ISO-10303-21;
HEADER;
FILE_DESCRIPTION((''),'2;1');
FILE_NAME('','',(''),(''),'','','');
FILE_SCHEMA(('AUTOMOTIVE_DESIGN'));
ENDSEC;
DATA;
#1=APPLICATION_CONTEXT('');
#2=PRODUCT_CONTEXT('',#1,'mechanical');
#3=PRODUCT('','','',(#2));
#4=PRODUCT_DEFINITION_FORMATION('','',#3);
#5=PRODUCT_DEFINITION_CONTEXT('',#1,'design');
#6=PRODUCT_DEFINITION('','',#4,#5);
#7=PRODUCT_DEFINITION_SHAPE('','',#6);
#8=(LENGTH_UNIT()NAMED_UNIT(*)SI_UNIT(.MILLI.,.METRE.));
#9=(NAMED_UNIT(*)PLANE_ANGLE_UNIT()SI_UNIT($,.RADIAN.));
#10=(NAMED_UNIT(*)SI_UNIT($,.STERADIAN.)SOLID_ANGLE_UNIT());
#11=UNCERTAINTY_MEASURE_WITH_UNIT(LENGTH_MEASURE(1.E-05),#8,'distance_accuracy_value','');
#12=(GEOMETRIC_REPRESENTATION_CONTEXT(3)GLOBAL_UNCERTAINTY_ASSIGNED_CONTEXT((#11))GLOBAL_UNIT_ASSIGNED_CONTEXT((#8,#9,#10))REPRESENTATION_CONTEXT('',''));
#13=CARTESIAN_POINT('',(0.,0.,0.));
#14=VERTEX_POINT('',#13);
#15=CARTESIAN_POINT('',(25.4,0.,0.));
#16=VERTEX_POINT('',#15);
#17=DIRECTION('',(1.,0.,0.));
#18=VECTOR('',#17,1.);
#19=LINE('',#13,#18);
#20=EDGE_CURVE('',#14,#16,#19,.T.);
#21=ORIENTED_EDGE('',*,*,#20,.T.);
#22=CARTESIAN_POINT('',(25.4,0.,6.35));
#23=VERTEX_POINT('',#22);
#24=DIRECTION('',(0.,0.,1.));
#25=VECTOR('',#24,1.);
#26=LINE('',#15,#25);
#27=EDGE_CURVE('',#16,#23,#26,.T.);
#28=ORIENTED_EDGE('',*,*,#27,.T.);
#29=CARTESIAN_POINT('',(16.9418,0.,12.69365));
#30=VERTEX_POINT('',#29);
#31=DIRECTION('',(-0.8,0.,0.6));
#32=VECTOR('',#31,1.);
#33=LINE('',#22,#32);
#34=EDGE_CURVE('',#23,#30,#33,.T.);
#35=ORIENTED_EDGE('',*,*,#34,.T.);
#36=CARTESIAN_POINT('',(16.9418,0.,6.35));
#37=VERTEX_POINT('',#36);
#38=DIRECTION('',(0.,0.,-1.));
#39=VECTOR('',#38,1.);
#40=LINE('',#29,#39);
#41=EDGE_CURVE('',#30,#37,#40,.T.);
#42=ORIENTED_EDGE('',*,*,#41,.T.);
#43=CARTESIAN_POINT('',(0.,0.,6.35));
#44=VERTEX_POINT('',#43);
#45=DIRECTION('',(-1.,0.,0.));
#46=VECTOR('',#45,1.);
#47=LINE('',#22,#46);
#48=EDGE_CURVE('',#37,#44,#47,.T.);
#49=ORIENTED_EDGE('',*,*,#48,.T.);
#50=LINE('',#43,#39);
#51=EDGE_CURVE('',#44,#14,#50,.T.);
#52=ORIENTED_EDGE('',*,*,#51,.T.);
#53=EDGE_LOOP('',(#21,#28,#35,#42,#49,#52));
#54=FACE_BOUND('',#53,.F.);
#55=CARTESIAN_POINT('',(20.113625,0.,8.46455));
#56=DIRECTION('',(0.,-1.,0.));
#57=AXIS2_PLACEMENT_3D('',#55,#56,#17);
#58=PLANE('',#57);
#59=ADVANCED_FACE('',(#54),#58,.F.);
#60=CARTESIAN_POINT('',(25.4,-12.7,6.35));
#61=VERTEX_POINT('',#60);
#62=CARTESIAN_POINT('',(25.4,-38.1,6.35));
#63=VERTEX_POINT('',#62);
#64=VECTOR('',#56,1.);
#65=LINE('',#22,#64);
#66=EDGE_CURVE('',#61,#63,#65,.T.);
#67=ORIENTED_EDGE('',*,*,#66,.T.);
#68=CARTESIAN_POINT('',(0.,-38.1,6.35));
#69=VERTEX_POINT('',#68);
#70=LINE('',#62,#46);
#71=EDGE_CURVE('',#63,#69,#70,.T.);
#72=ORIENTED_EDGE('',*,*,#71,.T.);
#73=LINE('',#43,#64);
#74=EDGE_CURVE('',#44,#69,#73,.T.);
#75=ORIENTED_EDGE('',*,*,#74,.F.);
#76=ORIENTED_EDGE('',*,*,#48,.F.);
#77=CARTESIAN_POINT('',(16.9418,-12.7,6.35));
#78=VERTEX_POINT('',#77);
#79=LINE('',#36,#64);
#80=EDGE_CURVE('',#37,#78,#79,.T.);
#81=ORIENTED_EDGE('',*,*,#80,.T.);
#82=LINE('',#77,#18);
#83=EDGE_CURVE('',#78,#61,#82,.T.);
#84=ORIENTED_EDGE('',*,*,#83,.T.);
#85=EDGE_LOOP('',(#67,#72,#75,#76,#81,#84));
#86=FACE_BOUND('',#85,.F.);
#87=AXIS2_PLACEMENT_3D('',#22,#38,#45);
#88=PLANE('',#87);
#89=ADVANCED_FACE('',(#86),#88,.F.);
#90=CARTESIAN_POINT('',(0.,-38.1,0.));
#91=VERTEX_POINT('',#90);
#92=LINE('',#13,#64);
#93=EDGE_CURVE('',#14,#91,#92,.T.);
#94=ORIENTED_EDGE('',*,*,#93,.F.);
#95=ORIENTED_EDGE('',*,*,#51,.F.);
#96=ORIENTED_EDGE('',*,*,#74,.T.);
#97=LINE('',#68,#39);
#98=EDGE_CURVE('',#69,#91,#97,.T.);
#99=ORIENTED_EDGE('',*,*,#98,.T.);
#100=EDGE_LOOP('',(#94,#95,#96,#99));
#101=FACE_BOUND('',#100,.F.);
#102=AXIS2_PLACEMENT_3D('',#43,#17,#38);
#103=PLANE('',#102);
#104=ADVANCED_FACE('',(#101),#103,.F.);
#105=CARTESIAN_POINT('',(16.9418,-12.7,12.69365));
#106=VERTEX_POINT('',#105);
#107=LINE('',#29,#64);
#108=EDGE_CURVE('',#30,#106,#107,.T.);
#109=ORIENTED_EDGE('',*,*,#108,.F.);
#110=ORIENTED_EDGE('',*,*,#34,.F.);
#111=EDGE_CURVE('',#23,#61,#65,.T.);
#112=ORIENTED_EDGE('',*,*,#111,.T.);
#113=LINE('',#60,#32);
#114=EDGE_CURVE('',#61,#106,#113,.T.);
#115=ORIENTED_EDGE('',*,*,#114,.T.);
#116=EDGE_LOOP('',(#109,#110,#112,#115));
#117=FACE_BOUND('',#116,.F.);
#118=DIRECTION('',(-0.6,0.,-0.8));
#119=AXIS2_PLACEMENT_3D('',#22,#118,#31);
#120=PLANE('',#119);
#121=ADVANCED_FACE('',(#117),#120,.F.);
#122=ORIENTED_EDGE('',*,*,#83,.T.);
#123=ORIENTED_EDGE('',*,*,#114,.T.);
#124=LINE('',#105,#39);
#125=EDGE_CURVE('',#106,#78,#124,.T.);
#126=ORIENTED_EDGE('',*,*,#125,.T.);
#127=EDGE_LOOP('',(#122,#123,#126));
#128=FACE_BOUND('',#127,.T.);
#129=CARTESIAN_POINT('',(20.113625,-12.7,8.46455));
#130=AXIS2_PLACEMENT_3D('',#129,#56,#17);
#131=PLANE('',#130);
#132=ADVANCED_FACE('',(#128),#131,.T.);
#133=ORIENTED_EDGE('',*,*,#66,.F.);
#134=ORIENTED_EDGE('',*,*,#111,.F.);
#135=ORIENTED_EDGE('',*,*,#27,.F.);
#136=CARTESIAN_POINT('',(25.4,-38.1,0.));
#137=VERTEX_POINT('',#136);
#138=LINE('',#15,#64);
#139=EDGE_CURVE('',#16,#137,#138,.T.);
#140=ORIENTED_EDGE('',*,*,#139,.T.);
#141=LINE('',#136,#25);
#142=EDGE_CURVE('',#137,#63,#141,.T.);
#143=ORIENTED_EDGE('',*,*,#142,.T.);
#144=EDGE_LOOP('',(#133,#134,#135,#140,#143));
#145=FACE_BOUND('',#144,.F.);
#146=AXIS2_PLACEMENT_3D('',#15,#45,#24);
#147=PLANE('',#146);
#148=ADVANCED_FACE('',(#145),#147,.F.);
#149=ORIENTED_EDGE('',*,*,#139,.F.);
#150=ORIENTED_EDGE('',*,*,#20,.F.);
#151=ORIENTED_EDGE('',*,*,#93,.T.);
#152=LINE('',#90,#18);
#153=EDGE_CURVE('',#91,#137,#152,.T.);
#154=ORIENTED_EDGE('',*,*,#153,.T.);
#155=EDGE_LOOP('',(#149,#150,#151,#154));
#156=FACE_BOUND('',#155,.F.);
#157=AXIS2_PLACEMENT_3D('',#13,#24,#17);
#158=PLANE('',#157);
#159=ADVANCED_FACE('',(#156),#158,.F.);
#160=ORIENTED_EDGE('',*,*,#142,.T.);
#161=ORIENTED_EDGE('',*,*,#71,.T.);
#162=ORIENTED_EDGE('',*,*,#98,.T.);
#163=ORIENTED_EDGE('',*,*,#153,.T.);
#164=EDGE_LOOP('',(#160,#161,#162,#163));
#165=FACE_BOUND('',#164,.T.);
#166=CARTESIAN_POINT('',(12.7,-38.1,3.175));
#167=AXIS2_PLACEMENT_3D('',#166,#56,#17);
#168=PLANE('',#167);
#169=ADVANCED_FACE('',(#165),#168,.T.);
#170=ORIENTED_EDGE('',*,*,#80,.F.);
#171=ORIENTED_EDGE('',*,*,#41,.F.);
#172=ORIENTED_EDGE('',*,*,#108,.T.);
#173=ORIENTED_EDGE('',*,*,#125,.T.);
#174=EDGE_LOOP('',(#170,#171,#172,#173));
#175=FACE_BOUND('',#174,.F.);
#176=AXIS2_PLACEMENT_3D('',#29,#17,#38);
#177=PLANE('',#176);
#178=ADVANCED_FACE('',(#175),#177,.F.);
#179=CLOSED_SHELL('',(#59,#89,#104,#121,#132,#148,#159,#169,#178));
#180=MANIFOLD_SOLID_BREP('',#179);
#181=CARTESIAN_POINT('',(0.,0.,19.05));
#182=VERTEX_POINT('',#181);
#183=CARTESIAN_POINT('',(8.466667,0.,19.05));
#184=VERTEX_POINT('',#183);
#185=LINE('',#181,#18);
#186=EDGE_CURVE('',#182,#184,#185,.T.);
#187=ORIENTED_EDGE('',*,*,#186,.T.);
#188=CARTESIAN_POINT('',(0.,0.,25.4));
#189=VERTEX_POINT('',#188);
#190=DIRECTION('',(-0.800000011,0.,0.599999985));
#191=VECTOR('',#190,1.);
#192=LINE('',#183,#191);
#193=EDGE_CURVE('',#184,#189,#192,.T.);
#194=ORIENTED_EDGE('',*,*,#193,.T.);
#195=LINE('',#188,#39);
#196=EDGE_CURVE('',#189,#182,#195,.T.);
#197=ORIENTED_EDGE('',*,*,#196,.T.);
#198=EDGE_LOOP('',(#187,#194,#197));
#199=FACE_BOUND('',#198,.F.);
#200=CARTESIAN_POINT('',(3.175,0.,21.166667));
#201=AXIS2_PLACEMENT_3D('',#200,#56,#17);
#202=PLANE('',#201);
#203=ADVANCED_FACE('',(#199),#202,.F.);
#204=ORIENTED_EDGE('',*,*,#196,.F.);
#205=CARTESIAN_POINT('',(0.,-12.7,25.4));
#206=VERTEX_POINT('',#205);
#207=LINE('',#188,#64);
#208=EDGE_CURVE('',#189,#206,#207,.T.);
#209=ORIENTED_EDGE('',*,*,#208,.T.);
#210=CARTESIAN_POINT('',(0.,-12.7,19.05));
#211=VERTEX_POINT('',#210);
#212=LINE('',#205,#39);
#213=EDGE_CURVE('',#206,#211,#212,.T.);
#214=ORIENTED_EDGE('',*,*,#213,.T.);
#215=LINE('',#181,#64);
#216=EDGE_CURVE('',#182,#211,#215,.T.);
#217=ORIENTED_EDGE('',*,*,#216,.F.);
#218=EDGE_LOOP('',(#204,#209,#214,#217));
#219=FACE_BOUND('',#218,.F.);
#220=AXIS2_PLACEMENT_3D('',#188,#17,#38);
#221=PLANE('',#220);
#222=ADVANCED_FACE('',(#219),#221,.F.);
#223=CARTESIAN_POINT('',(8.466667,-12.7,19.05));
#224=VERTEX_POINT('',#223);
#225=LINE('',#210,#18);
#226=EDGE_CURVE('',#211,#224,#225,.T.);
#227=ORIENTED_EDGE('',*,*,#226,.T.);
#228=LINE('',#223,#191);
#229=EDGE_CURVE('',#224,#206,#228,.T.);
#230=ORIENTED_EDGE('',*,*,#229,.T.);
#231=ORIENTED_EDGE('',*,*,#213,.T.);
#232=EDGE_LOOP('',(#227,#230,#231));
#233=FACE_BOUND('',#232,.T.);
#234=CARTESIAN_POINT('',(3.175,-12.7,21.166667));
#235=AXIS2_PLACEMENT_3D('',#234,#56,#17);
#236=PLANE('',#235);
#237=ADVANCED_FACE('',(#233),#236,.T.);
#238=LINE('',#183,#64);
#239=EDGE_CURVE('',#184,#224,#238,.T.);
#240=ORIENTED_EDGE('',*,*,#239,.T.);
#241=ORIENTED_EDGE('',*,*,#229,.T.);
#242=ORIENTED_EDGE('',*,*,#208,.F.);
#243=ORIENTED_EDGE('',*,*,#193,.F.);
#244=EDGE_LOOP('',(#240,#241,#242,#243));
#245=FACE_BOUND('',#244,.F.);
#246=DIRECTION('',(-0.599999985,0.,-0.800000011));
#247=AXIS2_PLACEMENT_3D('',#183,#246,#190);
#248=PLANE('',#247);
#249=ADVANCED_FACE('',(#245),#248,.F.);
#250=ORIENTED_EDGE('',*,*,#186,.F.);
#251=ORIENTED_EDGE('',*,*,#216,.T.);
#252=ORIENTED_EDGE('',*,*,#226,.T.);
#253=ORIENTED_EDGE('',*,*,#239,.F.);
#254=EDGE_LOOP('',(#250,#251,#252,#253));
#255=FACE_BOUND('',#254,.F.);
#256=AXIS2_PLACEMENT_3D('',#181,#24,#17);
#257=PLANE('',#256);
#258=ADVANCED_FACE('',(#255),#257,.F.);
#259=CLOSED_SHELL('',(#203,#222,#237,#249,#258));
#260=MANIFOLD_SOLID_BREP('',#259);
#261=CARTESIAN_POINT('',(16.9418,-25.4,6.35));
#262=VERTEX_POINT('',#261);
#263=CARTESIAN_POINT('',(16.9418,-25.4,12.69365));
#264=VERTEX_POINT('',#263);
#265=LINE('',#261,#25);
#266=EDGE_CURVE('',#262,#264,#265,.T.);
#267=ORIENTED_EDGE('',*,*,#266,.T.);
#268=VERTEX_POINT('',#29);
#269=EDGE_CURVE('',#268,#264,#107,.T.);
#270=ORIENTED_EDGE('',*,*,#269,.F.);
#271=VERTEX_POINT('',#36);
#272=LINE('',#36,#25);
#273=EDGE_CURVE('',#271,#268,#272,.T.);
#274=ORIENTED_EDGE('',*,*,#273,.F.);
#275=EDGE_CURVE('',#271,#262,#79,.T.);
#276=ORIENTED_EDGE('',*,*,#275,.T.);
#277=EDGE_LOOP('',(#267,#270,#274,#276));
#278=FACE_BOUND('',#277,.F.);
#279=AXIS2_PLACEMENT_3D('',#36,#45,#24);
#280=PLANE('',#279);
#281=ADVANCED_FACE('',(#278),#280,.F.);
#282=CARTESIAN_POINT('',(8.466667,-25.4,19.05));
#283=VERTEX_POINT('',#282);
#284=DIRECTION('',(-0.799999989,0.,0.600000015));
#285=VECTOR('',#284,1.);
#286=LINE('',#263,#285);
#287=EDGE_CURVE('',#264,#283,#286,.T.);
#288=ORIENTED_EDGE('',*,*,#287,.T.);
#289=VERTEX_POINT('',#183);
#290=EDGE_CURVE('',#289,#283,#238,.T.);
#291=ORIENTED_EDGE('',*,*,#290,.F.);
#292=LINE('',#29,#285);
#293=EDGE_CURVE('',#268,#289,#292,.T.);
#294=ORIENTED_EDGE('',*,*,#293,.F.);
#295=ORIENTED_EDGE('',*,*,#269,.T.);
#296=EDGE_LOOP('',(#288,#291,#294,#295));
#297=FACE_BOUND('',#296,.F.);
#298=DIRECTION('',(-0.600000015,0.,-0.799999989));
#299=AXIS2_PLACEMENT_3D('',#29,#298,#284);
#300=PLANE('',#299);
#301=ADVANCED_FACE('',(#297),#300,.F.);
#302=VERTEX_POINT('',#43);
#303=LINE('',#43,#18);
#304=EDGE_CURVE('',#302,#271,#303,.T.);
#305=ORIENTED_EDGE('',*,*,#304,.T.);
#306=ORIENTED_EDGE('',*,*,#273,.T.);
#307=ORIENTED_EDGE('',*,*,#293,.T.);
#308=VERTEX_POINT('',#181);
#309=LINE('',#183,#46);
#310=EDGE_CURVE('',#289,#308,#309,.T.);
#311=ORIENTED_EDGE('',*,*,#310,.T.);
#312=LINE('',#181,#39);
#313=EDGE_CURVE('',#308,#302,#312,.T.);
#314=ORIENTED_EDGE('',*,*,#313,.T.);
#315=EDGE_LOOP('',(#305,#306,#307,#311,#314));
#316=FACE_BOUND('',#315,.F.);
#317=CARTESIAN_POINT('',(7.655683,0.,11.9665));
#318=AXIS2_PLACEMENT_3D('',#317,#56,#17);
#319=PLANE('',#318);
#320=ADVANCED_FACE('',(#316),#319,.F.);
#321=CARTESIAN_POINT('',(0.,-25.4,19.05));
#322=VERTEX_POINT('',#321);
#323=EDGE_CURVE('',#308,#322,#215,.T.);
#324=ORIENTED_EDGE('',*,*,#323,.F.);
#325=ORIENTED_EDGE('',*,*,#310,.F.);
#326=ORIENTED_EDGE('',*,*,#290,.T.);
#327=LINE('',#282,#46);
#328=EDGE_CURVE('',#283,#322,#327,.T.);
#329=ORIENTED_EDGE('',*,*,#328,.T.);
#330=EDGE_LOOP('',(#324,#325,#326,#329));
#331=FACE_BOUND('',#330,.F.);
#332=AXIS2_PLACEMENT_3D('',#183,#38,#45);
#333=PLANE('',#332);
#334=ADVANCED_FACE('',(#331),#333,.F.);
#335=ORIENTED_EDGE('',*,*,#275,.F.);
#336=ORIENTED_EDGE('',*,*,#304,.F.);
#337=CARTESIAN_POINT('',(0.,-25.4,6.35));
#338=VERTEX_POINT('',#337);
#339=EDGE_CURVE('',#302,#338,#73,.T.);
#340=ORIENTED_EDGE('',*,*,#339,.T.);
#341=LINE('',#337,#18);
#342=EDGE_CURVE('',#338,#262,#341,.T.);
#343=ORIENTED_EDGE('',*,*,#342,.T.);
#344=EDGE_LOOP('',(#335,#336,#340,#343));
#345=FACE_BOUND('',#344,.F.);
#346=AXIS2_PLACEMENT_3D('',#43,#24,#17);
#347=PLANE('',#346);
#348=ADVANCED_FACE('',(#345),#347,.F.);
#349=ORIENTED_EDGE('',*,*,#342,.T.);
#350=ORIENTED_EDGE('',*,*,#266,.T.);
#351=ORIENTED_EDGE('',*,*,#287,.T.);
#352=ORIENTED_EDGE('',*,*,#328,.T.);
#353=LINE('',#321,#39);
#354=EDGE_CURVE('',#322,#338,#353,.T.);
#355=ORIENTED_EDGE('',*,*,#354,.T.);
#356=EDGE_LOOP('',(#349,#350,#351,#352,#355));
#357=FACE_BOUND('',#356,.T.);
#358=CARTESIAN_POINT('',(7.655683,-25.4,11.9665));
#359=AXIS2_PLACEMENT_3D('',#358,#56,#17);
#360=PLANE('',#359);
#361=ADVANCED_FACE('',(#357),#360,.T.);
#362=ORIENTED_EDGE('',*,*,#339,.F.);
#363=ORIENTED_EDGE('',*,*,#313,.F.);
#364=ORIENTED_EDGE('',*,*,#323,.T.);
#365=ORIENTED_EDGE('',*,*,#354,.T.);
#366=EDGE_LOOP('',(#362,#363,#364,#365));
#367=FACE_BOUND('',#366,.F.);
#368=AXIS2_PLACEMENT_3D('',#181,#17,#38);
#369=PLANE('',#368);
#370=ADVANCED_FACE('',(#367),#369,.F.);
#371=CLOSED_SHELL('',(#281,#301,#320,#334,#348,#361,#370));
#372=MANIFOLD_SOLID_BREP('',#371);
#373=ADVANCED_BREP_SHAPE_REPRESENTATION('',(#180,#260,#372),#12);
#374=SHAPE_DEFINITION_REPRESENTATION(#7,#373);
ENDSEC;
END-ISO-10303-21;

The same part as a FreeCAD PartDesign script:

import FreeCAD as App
import Part
import Sketcher

V = App.Vector
Q = App.Units.Quantity

doc = App.newDocument("Part")
body = doc.addObject("PartDesign::Body", "Body")
body.AllowCompound = True

# Sketch on XZ plane
sketch1 = body.newObject("Sketcher::SketchObject", "Sketch")
sketch1.AttachmentSupport = (doc.getObject("XZ_Plane"), [""])
sketch1.MapMode = "FlatFace"
sketch1.addGeometry([
    Part.LineSegment(V(0, 6, 0), V(0, 0, 0)),
    Part.LineSegment(V(0, 0, 0), V(25, 0, 0)),
    Part.LineSegment(V(25, 0, 0), V(25, 6, 0)),
    Part.LineSegment(V(25, 6, 0), V(0, 6, 0)),
], False)
sketch1.addConstraint([
    Sketcher.Constraint("Coincident", 0, 2, 1, 1),
    Sketcher.Constraint("Coincident", 1, 2, 2, 1),
    Sketcher.Constraint("Coincident", 2, 2, 3, 1),
    Sketcher.Constraint("Coincident", 3, 2, 0, 1),
    Sketcher.Constraint("Vertical", 0),
    Sketcher.Constraint("Horizontal", 1),
    Sketcher.Constraint("Vertical", 2),
    Sketcher.Constraint("Horizontal", 3),
    Sketcher.Constraint("Coincident", 0, 2, -1, 1),
    Sketcher.Constraint("DistanceX", 1, 1, 1, 2, Q("1 in")),
    Sketcher.Constraint("DistanceY", 0, 2, 0, 1, Q("0.25 in")),
])
pad1 = body.newObject("PartDesign::Pad", "Pad")
pad1.Profile = sketch1
pad1.Length = Q("1.5 in")

# Sketch on XZ plane
sketch2 = body.newObject("Sketcher::SketchObject", "Sketch001")
sketch2.AttachmentSupport = (doc.getObject("XZ_Plane"), [""])
sketch2.MapMode = "FlatFace"
sketch2.addGeometry([
    Part.LineSegment(V(0, 25, 0), V(0, 19, 0)),  # 0
    Part.LineSegment(V(0, 19, 0), V(8, 19, 0)),  # 1
    Part.LineSegment(V(8, 19, 0), V(0, 25, 0)),  # 2
    Part.LineSegment(V(17, 6, 0), V(25, 6, 0)),  # 3
    Part.LineSegment(V(25, 6, 0), V(17, 13, 0)),  # 4
    Part.LineSegment(V(17, 13, 0), V(17, 6, 0)),  # 5
], False)
sketch2.addConstraint([
    Sketcher.Constraint("Coincident", 0, 2, 1, 1),
    Sketcher.Constraint("Coincident", 1, 2, 2, 1),
    Sketcher.Constraint("Coincident", 2, 2, 0, 1),
    Sketcher.Constraint("Coincident", 3, 2, 4, 1),
    Sketcher.Constraint("Coincident", 4, 2, 5, 1),
    Sketcher.Constraint("Coincident", 5, 2, 3, 1),
    Sketcher.Constraint("Vertical", 0),
    Sketcher.Constraint("Horizontal", 1),
    Sketcher.Constraint("Horizontal", 3),
    Sketcher.Constraint("Vertical", 5),
    Sketcher.Constraint("PointOnObject", 0, 2, -2),
    Sketcher.Constraint("Parallel", 2, 4),
    Sketcher.Constraint("DistanceY", -1, 1, 2, 2, Q("1 in")),
    Sketcher.Constraint("DistanceX", -1, 1, 3, 2, Q("1 in")),
    Sketcher.Constraint("DistanceY", 0, 2, 0, 1, Q("0.25 in")),
    Sketcher.Constraint("DistanceY", 3, 2, 1, 2, Q("0.5 in")),
    Sketcher.Constraint("DistanceX", 3, 1, 3, 2, Q("0.333 in")),
    Sketcher.Constraint("DistanceY", 5, 2, 5, 1, 6.34365),
])
pad2 = body.newObject("PartDesign::Pad", "Pad001")
pad2.Profile = sketch2
pad2.Length = Q("0.5 in")
body2 = doc.addObject("PartDesign::Body", "Body001")

# Sketch on XZ plane
sketch3 = body2.newObject("Sketcher::SketchObject", "Sketch002")
sketch3.AttachmentSupport = (doc.getObject("XZ_Plane001"), [""])
sketch3.MapMode = "FlatFace"
sketch3.addGeometry([
    Part.LineSegment(V(0, 19, 0), V(0, 6, 0)),  # 0
    Part.LineSegment(V(0, 6, 0), V(17, 6, 0)),  # 1
    Part.LineSegment(V(17, 6, 0), V(17, 13, 0)),  # 2
    Part.LineSegment(V(17, 13, 0), V(8, 19, 0)),  # 3
    Part.LineSegment(V(8, 19, 0), V(0, 19, 0)),  # 4
], False)
sketch3.addConstraint([
    Sketcher.Constraint("Coincident", 0, 2, 1, 1),
    Sketcher.Constraint("Coincident", 1, 2, 2, 1),
    Sketcher.Constraint("Coincident", 2, 2, 3, 1),
    Sketcher.Constraint("Coincident", 3, 2, 4, 1),
    Sketcher.Constraint("Coincident", 4, 2, 0, 1),
    Sketcher.Constraint("Vertical", 0),
    Sketcher.Constraint("Horizontal", 1),
    Sketcher.Constraint("Vertical", 2),
    Sketcher.Constraint("Horizontal", 4),
    Sketcher.Constraint("PointOnObject", 0, 2, -2),
    Sketcher.Constraint("DistanceY", 0, 2, 0, 1, Q("0.5 in")),
    Sketcher.Constraint("DistanceX", 1, 1, 1, 2, Q("0.667 in")),
    Sketcher.Constraint("DistanceY", -1, 1, 0, 2, Q("0.25 in")),
    Sketcher.Constraint("DistanceY", 2, 1, 2, 2, 6.34365),
    Sketcher.Constraint("DistanceX", 4, 2, 4, 1, 8.466667),
])
pad3 = body2.newObject("PartDesign::Pad", "Pad002")
pad3.Profile = sketch3
pad3.Length = Q("1 in")

doc.recompute()
